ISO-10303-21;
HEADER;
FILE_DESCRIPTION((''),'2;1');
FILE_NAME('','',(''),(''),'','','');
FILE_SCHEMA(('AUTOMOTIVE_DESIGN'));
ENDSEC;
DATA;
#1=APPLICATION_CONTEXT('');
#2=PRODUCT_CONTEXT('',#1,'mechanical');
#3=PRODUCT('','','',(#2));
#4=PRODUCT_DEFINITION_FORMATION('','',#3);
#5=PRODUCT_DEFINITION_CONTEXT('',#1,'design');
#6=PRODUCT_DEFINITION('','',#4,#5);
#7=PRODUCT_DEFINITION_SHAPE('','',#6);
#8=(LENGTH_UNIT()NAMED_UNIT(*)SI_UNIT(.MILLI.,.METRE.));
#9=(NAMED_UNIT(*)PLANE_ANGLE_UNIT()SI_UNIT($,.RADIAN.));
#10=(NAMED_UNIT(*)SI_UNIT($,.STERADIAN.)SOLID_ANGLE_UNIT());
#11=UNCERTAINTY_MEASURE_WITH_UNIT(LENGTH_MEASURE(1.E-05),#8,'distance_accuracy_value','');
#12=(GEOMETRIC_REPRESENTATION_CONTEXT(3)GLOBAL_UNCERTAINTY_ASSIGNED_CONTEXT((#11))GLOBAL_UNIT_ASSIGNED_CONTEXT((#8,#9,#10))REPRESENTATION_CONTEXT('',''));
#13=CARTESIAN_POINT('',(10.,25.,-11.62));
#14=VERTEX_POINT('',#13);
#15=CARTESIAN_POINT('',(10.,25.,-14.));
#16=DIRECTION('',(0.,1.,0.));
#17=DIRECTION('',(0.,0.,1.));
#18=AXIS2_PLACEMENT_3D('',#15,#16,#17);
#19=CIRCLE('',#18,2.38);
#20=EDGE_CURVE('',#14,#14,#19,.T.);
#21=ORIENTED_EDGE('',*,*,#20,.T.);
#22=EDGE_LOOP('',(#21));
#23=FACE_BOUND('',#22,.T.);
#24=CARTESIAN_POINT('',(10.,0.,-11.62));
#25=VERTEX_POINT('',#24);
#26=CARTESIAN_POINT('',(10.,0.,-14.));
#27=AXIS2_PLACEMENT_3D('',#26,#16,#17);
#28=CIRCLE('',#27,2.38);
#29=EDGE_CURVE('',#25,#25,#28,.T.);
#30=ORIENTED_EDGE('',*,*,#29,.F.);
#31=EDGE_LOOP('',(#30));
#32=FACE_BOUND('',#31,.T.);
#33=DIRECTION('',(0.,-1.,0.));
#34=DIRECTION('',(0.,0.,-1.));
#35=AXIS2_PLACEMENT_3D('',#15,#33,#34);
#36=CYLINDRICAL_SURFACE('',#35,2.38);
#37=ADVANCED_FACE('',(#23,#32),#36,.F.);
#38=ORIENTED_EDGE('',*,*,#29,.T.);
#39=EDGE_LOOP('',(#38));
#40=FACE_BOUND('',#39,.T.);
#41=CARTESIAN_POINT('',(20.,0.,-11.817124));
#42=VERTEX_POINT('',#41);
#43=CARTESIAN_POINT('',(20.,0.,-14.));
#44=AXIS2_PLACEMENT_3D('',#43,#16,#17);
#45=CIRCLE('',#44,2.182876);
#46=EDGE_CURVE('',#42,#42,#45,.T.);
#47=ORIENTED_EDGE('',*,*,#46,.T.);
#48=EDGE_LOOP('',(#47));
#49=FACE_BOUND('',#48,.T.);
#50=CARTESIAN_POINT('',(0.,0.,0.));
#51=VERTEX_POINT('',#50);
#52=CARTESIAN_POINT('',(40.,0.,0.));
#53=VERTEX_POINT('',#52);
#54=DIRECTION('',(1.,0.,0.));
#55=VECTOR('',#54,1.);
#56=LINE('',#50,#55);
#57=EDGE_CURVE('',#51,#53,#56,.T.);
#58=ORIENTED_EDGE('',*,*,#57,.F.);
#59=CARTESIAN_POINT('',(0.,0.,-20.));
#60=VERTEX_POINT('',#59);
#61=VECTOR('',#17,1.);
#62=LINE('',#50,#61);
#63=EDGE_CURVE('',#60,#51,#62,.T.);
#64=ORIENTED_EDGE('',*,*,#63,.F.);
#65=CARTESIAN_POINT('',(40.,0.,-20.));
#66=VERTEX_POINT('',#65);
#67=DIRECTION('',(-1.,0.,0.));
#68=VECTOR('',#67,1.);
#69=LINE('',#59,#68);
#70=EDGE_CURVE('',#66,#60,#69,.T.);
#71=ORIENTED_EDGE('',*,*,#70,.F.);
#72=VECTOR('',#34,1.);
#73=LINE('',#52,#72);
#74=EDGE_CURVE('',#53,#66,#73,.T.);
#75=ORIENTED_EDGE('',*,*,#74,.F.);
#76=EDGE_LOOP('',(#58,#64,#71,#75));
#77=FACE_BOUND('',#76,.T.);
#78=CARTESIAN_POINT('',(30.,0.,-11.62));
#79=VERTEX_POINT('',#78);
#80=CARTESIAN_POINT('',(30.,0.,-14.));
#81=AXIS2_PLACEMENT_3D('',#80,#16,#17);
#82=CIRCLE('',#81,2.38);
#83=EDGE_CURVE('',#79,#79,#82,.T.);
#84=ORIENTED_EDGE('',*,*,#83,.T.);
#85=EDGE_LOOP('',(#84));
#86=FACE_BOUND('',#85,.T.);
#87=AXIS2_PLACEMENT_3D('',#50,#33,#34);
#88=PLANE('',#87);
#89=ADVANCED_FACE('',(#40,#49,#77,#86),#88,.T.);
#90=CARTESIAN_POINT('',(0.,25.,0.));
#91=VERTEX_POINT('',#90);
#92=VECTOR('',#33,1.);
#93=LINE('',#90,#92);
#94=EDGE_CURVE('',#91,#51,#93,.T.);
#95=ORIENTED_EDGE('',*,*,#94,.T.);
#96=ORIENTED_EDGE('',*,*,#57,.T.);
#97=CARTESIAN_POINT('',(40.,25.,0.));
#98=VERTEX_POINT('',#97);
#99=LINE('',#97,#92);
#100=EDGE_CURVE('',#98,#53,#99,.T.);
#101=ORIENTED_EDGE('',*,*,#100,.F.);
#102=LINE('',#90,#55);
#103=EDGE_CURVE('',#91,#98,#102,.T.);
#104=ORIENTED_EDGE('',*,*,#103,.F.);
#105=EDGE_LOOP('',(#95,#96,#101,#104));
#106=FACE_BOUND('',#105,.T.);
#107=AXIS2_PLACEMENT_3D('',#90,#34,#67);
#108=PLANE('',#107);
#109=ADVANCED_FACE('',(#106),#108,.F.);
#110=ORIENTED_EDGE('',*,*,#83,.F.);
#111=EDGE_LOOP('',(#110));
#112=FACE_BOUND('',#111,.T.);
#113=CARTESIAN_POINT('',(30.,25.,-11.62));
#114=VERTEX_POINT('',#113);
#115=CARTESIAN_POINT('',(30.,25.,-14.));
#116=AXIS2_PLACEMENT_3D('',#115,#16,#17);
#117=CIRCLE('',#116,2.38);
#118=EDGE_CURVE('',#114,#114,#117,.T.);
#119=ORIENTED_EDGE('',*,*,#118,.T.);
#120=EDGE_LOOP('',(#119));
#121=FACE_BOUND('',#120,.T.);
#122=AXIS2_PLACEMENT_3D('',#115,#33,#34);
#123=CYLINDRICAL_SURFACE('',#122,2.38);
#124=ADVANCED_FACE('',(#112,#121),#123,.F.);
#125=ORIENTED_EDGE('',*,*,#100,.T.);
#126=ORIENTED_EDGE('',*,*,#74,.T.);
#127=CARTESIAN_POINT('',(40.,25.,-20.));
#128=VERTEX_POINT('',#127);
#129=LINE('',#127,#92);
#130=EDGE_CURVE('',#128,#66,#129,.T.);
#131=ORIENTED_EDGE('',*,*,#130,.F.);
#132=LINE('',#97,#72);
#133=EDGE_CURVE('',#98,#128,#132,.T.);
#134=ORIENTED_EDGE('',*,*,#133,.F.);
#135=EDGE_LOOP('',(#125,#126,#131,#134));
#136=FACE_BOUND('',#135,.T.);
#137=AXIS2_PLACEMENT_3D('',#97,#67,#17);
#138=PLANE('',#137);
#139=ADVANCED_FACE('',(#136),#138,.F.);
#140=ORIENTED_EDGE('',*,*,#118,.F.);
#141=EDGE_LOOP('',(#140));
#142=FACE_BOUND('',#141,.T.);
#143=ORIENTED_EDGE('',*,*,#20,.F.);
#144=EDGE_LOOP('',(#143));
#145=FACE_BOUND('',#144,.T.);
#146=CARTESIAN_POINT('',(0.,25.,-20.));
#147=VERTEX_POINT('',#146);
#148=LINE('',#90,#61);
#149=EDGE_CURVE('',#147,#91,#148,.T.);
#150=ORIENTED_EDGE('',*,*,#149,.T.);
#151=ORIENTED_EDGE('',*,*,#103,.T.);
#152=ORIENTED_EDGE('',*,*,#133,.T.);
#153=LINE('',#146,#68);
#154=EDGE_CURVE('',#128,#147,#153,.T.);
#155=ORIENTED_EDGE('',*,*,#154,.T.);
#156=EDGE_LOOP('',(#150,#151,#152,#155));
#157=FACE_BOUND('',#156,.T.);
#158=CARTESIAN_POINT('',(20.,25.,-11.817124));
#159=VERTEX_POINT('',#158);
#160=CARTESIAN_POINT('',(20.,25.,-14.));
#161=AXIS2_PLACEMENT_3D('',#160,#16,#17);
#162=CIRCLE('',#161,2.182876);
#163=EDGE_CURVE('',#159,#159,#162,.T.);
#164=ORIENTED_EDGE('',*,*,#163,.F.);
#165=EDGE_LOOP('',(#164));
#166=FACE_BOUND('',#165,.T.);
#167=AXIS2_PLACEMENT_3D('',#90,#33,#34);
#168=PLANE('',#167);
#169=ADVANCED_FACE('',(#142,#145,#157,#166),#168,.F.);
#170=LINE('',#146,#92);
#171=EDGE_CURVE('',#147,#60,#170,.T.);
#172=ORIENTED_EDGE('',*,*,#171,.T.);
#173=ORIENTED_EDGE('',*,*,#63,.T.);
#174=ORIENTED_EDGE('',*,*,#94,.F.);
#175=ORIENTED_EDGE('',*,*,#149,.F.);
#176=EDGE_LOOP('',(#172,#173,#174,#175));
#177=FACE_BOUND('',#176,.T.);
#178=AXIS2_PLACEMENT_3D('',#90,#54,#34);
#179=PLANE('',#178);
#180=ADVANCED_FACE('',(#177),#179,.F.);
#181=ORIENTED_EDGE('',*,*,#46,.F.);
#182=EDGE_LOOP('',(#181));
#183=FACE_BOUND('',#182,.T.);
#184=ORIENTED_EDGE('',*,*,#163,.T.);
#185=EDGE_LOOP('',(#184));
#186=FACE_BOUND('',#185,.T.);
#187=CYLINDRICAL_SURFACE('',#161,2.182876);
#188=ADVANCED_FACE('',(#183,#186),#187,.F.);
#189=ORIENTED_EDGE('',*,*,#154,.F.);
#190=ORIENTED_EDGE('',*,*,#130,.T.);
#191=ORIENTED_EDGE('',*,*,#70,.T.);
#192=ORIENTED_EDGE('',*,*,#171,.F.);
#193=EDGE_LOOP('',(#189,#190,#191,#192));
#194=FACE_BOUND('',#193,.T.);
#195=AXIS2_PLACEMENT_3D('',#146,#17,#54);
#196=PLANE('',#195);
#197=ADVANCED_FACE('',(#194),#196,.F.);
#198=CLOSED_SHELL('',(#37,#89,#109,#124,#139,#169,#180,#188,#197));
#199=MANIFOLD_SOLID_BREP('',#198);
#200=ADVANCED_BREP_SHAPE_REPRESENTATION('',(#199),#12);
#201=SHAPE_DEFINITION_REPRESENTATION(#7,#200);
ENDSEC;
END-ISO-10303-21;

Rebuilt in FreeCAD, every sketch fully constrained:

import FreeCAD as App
import Part
import Sketcher
Q = App.Units.Quantity

doc = App.newDocument("Part")
body = doc.addObject("PartDesign::Body", "Body")

sketch1 = body.newObject("Sketcher::SketchObject", "Sketch")
sketch1.AttachmentSupport = (doc.getObject("XZ_Plane"), [""])
sketch1.MapMode = "FlatFace"
sketch1.addGeometry([
    Part.LineSegment(App.Vector(0, -20, 0), App.Vector(0, 0, 0)),
    Part.LineSegment(App.Vector(0, 0, 0), App.Vector(40, 0, 0)),
    Part.LineSegment(App.Vector(40, 0, 0), App.Vector(40, -20, 0)),
    Part.LineSegment(App.Vector(40, -20, 0), App.Vector(0, -20, 0)),
    Part.Circle(App.Vector(10, -14, 0), App.Vector(0, 0, 1), 2.4),
    Part.Circle(App.Vector(30, -14, 0), App.Vector(0, 0, 1), 2.4),
], False)
sketch1.addConstraint([
    Sketcher.Constraint("Coincident", 0, 2, 1, 1),
    Sketcher.Constraint("Coincident", 1, 2, 2, 1),
    Sketcher.Constraint("Coincident", 2, 2, 3, 1),
    Sketcher.Constraint("Coincident", 3, 2, 0, 1),
    Sketcher.Constraint("Vertical", 0),
    Sketcher.Constraint("Horizontal", 1),
    Sketcher.Constraint("Vertical", 2),
    Sketcher.Constraint("Horizontal", 3),
    Sketcher.Constraint("Coincident", 0, 2, -1, 1),
    Sketcher.Constraint("Equal", 4, 5),
    Sketcher.Constraint("Horizontal", 4, 3, 5, 3),
    Sketcher.Constraint("Diameter", 4, Q("4.76 mm")),
    Sketcher.Constraint("DistanceX", 1, 1, 1, 2, Q("40 mm")),
    Sketcher.Constraint("DistanceY", 0, 1, 0, 2, Q("20 mm")),
    Sketcher.Constraint("DistanceX", -1, 1, 4, 3, Q("10 mm")),
    Sketcher.Constraint("DistanceY", 4, 3, -1, 1, Q("14 mm")),
    Sketcher.Constraint("DistanceX", -1, 1, 5, 3, Q("30 mm")),
])
pad1 = body.newObject("PartDesign::Pad", "Pad")
pad1.Profile = sketch1
pad1.Length = 25
pad1.Reversed = True

sketch2 = body.newObject("Sketcher::SketchObject", "Sketch001")
sketch2.AttachmentSupport = (doc.getObject("XZ_Plane"), [""])
sketch2.MapMode = "FlatFace"
sketch2.AttachmentOffset = App.Placement(App.Vector(0, 0, -25), App.Rotation())
sketch2.addGeometry(Part.Circle(App.Vector(20, -14, 0), App.Vector(0, 0, 1), 2.2), False)
sketch2.addConstraint([
    Sketcher.Constraint("DistanceX", -1, 1, 0, 3, Q("20 mm")),
    Sketcher.Constraint("DistanceY", 0, 3, -1, 1, Q("14 mm")),
    Sketcher.Constraint("Diameter", 0, Q("4.365752 mm")),
])
doc.recompute()
hole = body.newObject("PartDesign::Hole", "Hole")
hole.Profile = sketch2
hole.ThreadType = "None"
hole.Diameter = 4.365752
hole.DepthType = "ThroughAll"
hole.Reversed = True

doc.recompute()
